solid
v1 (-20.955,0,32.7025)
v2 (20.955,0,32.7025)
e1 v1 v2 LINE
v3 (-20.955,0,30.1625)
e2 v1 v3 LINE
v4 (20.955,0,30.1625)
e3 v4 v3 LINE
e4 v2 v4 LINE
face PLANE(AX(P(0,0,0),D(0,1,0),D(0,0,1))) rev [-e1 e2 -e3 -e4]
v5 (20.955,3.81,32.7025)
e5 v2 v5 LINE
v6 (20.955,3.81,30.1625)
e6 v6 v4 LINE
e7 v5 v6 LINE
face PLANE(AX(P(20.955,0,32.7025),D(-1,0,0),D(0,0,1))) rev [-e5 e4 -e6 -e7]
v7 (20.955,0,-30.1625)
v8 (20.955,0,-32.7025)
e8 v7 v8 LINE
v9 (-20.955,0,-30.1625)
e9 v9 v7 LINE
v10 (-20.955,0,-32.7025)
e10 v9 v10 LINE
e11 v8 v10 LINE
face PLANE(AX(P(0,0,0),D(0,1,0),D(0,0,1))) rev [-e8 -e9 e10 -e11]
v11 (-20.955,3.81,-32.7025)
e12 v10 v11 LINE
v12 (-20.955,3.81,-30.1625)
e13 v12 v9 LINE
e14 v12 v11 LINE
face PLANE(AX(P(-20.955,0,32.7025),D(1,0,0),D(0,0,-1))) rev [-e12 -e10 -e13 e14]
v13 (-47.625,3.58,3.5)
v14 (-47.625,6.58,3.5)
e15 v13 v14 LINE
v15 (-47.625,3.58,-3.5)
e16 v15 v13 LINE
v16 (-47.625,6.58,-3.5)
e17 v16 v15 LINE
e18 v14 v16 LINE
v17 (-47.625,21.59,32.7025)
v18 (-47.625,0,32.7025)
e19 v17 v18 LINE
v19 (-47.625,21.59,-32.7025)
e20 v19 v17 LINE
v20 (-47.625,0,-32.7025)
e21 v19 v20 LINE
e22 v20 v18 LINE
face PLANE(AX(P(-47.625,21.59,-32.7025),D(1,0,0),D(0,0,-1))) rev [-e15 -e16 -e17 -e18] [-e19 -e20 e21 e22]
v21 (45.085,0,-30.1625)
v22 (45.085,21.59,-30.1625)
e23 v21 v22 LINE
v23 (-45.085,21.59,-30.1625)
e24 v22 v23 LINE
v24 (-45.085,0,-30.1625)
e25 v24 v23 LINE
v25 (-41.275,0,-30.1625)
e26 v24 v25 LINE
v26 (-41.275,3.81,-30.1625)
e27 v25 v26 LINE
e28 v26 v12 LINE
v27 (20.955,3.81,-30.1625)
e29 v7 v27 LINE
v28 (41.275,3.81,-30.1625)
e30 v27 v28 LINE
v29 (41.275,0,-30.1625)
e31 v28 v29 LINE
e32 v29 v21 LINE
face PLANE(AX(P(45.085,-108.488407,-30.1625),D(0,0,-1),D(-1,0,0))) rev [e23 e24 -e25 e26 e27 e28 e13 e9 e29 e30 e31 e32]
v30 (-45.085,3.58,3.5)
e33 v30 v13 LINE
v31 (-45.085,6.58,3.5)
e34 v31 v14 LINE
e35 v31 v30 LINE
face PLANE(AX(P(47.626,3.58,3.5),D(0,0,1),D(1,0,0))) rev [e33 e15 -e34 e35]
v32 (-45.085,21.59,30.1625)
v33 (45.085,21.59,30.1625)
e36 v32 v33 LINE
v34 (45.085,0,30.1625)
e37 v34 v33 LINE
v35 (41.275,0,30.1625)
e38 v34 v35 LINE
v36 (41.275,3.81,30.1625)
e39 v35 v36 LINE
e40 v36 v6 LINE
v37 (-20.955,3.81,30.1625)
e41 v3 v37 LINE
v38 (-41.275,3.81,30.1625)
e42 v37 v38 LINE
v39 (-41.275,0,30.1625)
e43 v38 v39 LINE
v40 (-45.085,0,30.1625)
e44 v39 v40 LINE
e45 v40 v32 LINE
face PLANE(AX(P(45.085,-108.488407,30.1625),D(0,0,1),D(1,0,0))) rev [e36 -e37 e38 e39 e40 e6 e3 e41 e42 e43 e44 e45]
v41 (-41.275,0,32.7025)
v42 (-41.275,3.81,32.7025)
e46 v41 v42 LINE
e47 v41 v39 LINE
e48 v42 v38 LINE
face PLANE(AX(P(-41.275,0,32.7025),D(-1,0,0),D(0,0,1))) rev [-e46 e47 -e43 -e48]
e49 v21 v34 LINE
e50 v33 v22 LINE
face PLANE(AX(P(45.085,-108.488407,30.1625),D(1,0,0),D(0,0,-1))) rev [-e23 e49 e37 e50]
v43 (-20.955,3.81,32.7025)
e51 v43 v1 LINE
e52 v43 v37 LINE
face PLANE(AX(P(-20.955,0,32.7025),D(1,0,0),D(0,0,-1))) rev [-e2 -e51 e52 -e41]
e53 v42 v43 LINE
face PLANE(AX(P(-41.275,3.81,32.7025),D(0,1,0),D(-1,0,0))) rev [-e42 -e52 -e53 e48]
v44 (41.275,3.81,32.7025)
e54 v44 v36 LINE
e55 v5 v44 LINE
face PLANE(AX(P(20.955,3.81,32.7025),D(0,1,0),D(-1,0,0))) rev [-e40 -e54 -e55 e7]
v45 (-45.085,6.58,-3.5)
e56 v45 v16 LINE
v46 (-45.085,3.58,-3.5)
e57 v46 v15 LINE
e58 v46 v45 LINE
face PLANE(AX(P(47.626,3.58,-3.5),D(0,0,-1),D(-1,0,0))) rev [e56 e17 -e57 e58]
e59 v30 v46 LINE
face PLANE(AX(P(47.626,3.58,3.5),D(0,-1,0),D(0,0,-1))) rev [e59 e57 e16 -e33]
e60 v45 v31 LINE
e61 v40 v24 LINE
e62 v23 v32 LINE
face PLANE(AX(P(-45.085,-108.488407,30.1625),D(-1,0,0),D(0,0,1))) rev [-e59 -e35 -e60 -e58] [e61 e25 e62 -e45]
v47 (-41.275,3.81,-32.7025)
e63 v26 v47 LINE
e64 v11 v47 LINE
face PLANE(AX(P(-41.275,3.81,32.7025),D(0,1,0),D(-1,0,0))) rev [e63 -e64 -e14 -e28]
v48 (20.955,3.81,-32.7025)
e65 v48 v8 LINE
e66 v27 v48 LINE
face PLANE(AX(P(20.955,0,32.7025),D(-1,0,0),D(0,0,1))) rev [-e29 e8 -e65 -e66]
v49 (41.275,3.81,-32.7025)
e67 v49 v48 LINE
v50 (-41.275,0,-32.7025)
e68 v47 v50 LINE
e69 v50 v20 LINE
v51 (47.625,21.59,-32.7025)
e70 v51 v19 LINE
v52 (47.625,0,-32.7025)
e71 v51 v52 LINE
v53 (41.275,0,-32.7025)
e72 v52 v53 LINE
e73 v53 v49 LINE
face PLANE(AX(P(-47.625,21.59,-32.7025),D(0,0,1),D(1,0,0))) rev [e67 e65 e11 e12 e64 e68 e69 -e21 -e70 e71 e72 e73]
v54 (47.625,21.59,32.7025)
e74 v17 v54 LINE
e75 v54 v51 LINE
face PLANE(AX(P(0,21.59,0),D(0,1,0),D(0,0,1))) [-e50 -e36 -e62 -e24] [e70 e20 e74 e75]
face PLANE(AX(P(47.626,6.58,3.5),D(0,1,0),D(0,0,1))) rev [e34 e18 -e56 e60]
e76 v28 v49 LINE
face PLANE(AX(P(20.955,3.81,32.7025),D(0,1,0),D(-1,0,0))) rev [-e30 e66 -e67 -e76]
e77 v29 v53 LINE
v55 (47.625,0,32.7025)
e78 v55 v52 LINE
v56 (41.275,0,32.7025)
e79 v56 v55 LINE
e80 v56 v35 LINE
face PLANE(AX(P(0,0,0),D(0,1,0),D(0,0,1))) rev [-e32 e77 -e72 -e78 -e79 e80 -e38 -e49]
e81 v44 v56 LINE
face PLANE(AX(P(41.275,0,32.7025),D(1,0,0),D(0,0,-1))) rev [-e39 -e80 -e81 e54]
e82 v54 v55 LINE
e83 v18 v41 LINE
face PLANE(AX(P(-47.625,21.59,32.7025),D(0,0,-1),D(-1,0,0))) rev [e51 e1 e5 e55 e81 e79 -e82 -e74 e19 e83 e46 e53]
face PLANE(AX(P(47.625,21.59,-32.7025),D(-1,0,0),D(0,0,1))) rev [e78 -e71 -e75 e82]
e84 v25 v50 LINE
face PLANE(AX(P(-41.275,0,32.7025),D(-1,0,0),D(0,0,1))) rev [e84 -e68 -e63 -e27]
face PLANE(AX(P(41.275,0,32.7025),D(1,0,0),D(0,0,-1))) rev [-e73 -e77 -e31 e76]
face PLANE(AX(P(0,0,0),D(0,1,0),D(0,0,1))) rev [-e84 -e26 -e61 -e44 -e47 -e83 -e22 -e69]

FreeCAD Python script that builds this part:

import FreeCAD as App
import Part
import Sketcher
Q = App.Units.Quantity


def add_polygon(sketch, points):
    """Adds a closed chain of lines whose ends are joined by coincident constraints."""
    first, n = sketch.GeometryCount, len(points)
    for a, b in zip(points, points[1:] + points[:1]):
        sketch.addGeometry(Part.LineSegment(App.Vector(*a, 0), App.Vector(*b, 0)), False)
    for i in range(n):
        sketch.addConstraint(Sketcher.Constraint("Coincident", first + i, 2, first + (i + 1) % n, 1))

doc = App.newDocument("Part")
body = doc.addObject("PartDesign::Body", "Body")

# Sketch on XZ plane
sketch1 = body.newObject("Sketcher::SketchObject", "Sketch")
sketch1.AttachmentSupport = (doc.getObject("XZ_Plane"), [""])
sketch1.MapMode = "FlatFace"
add_polygon(sketch1, [(-47.625, -32.7025), (-47.625, 32.7025), (47.625, 32.7025), (47.625, -32.7025)])  # lines 0-3
sketch1.addConstraint([
    Sketcher.Constraint("Vertical", 0),
    Sketcher.Constraint("Horizontal", 1),
    Sketcher.Constraint("Vertical", 2),
    Sketcher.Constraint("Horizontal", 3),
    Sketcher.Constraint("Symmetric", 0, 2, 2, 2, -1, 1),
    Sketcher.Constraint("DistanceX", 1, 1, 1, 2, Q("3.75 in")),
    Sketcher.Constraint("DistanceY", 0, 1, 0, 2, Q("2.575 in")),
])
pad1 = body.newObject("PartDesign::Pad", "Pad")
pad1.Profile = sketch1
pad1.Length = Q("0.85 in")
pad1.Reversed = True

# Sketch on XZ plane
sketch2 = body.newObject("Sketcher::SketchObject", "Sketch001")
sketch2.AttachmentSupport = (doc.getObject("XZ_Plane"), [""])
sketch2.MapMode = "FlatFace"
sketch2.AttachmentOffset = App.Placement(App.Vector(0, 0, -0.85 * 25.4), App.Rotation())
add_polygon(sketch2, [(-45.085, -30.1625), (-45.085, 30.1625), (45.085, 30.1625), (45.085, -30.1625)])  # lines 0-3
sketch2.addConstraint([
    Sketcher.Constraint("Vertical", 0),
    Sketcher.Constraint("Horizontal", 1),
    Sketcher.Constraint("Vertical", 2),
    Sketcher.Constraint("Horizontal", 3),
    Sketcher.Constraint("Symmetric", 0, 2, 2, 2, -1, 1),
    Sketcher.Constraint("DistanceX", 1, 1, 1, 2, Q("3.55 in")),
    Sketcher.Constraint("DistanceY", 0, 1, 0, 2, Q("2.375 in")),
])
pocket1 = body.newObject("PartDesign::Pocket", "Pocket")
pocket1.Profile = sketch2
pocket1.Length = Q("0.85 in")
pocket1.Reversed = True

# Sketch on YZ plane
sketch3 = body.newObject("Sketcher::SketchObject", "Sketch002")
sketch3.AttachmentSupport = (doc.getObject("YZ_Plane"), [""])
sketch3.MapMode = "FlatFace"
sketch3.AttachmentOffset = App.Placement(App.Vector(0, 0, -1.875 * 25.4), App.Rotation())
add_polygon(sketch3, [(6.58, -3.5), (3.58, -3.5), (3.58, 3.5), (6.58, 3.5)])  # lines 0-3
sketch3.addConstraint([
    Sketcher.Constraint("Horizontal", 0),
    Sketcher.Constraint("Vertical", 1),
    Sketcher.Constraint("Horizontal", 2),
    Sketcher.Constraint("Vertical", 3),
    Sketcher.Constraint("DistanceX", 0, 2, 0, 1, 3.0),
    Sketcher.Constraint("DistanceY", 1, 1, 1, 2, 7.0),
    Sketcher.Constraint("DistanceX", -1, 1, 0, 2, 3.58),
    Sketcher.Constraint("DistanceY", 0, 2, -1, 1, 3.5),
])
pocket2 = body.newObject("PartDesign::Pocket", "Pocket001")
pocket2.Profile = sketch3
pocket2.Type = "UpToFirst"
pocket2.Reversed = True

# Sketch on XY plane
sketch4 = body.newObject("Sketcher::SketchObject", "Sketch003")
sketch4.AttachmentSupport = (doc.getObject("XY_Plane"), [""])
sketch4.MapMode = "FlatFace"
sketch4.AttachmentOffset = App.Placement(App.Vector(0, 0, -1.2875 * 25.4), App.Rotation())
add_polygon(sketch4, [(41.275, 3.81), (41.275, 0), (20.955, 0), (20.955, 3.81)])  # lines 0-3
add_polygon(sketch4, [(-20.955, 3.81), (-20.955, 0), (-41.275, 0), (-41.275, 3.81)])  # lines 4-7
sketch4.addConstraint([
    Sketcher.Constraint("Vertical", 0),
    Sketcher.Constraint("Horizontal", 1),
    Sketcher.Constraint("Vertical", 2),
    Sketcher.Constraint("Horizontal", 3),
    Sketcher.Constraint("Vertical", 4),
    Sketcher.Constraint("Horizontal", 5),
    Sketcher.Constraint("Vertical", 6),
    Sketcher.Constraint("Horizontal", 7),
    Sketcher.Constraint("Symmetric", 1, 2, 4, 2, -1, 1),
    Sketcher.Constraint("Symmetric", 0, 2, 5, 2, -2),
    Sketcher.Constraint("Horizontal", 3, 2, 6, 2),
    Sketcher.Constraint("DistanceX", 1, 2, 1, 1, Q("0.8 in")),
    Sketcher.Constraint("DistanceY", 0, 2, 0, 1, Q("0.15 in")),
    Sketcher.Constraint("DistanceX", 4, 2, 1, 2, Q("1.65 in")),
])
pocket3 = body.newObject("PartDesign::Pocket", "Pocket002")
pocket3.Profile = sketch4
pocket3.Type = "ThroughAll"
pocket3.Midplane = True

doc.recompute()
